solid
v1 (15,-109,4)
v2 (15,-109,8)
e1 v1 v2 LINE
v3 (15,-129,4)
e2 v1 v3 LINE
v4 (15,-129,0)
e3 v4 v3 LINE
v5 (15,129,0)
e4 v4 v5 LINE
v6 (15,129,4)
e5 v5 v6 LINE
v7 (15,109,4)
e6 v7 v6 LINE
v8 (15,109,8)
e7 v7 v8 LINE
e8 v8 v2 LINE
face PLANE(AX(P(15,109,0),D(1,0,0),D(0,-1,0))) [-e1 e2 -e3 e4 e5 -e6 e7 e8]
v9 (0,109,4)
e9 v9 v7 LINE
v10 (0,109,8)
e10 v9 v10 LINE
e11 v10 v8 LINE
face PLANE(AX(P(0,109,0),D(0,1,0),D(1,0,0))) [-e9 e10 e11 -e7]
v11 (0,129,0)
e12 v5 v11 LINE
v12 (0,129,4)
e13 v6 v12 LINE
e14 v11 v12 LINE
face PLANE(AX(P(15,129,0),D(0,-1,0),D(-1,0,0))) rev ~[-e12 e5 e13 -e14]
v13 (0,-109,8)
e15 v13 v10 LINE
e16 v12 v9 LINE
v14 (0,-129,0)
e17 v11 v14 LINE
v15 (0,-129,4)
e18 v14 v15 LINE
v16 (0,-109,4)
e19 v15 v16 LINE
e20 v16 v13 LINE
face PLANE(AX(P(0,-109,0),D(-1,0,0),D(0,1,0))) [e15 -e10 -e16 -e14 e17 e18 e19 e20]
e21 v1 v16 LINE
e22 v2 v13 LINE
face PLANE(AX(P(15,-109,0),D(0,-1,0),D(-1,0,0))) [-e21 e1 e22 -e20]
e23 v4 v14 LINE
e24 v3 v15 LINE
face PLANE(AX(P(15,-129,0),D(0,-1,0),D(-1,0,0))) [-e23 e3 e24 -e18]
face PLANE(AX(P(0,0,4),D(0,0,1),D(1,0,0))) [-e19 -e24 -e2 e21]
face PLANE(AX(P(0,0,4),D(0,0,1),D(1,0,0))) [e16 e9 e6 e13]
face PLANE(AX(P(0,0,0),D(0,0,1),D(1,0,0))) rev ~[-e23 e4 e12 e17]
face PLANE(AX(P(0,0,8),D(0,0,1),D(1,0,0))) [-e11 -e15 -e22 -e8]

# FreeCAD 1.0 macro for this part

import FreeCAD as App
import Part
import Sketcher
from FreeCAD import Vector

doc = App.newDocument("Part")
body = doc.addObject("PartDesign::Body", "Body")

sketch1 = doc.addObject("Sketcher::SketchObject", "Sketch")
body.addObject(sketch1)
sketch1.AttachmentSupport = (doc.XY_Plane, [""])
sketch1.MapMode = "FlatFace"
sketch1.addGeometry(Part.LineSegment(Vector(15, 109, 0), Vector(0, 109, 0)), False)
sketch1.addGeometry(Part.LineSegment(Vector(0, 109, 0), Vector(0, -109, 0)), False)
sketch1.addGeometry(Part.LineSegment(Vector(0, -109, 0), Vector(15, -109, 0)), False)
sketch1.addGeometry(Part.LineSegment(Vector(15, -109, 0), Vector(15, 109, 0)), False)
sketch1.addConstraint(Sketcher.Constraint("Coincident", 0, 2, 1, 1))
sketch1.addConstraint(Sketcher.Constraint("Coincident", 1, 2, 2, 1))
sketch1.addConstraint(Sketcher.Constraint("Coincident", 2, 2, 3, 1))
sketch1.addConstraint(Sketcher.Constraint("Coincident", 3, 2, 0, 1))
sketch1.addConstraint(Sketcher.Constraint("Horizontal", 0))
sketch1.addConstraint(Sketcher.Constraint("Vertical", 1))
sketch1.addConstraint(Sketcher.Constraint("Horizontal", 2))
sketch1.addConstraint(Sketcher.Constraint("Vertical", 3))
sketch1.addConstraint(Sketcher.Constraint("Symmetric", 0, 2, 1, 2, -1, 1))
sketch1.addConstraint(Sketcher.Constraint("DistanceX", 0, 2, 0, 1, 15.0))
sketch1.addConstraint(Sketcher.Constraint("DistanceY", 1, 2, 1, 1, 218.0))
pad1 = doc.addObject("PartDesign::Pad", "Pad")
body.addObject(pad1)
pad1.Profile = sketch1
pad1.Length = 8

sketch2 = doc.addObject("Sketcher::SketchObject", "Sketch001")
body.addObject(sketch2)
sketch2.AttachmentSupport = (doc.XY_Plane, [""])
sketch2.MapMode = "FlatFace"
sketch2.addGeometry(Part.LineSegment(Vector(0, 129, 0), Vector(0, 109, 0)), False)
sketch2.addGeometry(Part.LineSegment(Vector(0, 109, 0), Vector(15, 109, 0)), False)
sketch2.addGeometry(Part.LineSegment(Vector(15, 109, 0), Vector(15, 129, 0)), False)
sketch2.addGeometry(Part.LineSegment(Vector(15, 129, 0), Vector(0, 129, 0)), False)
sketch2.addGeometry(Part.LineSegment(Vector(15, -109, 0), Vector(0, -109, 0)), False)
sketch2.addGeometry(Part.LineSegment(Vector(0, -109, 0), Vector(0, -129, 0)), False)
sketch2.addGeometry(Part.LineSegment(Vector(0, -129, 0), Vector(15, -129, 0)), False)
sketch2.addGeometry(Part.LineSegment(Vector(15, -129, 0), Vector(15, -109, 0)), False)
sketch2.addConstraint(Sketcher.Constraint("Coincident", 0, 2, 1, 1))
sketch2.addConstraint(Sketcher.Constraint("Coincident", 1, 2, 2, 1))
sketch2.addConstraint(Sketcher.Constraint("Coincident", 2, 2, 3, 1))
sketch2.addConstraint(Sketcher.Constraint("Coincident", 3, 2, 0, 1))
sketch2.addConstraint(Sketcher.Constraint("Coincident", 4, 2, 5, 1))
sketch2.addConstraint(Sketcher.Constraint("Coincident", 5, 2, 6, 1))
sketch2.addConstraint(Sketcher.Constraint("Coincident", 6, 2, 7, 1))
sketch2.addConstraint(Sketcher.Constraint("Coincident", 7, 2, 4, 1))
sketch2.addConstraint(Sketcher.Constraint("Vertical", 0))
sketch2.addConstraint(Sketcher.Constraint("Horizontal", 1))
sketch2.addConstraint(Sketcher.Constraint("Vertical", 2))
sketch2.addConstraint(Sketcher.Constraint("Horizontal", 3))
sketch2.addConstraint(Sketcher.Constraint("Horizontal", 4))
sketch2.addConstraint(Sketcher.Constraint("Vertical", 5))
sketch2.addConstraint(Sketcher.Constraint("Horizontal", 6))
sketch2.addConstraint(Sketcher.Constraint("Vertical", 7))
sketch2.addConstraint(Sketcher.Constraint("Symmetric", 0, 2, 4, 2, -1, 1))
sketch2.addConstraint(Sketcher.Constraint("Symmetric", 3, 2, 5, 2, -1))
sketch2.addConstraint(Sketcher.Constraint("Vertical", 2, 2, 6, 2))
sketch2.addConstraint(Sketcher.Constraint("DistanceX", 1, 1, 1, 2, 15.0))
sketch2.addConstraint(Sketcher.Constraint("DistanceY", 0, 2, 0, 1, 20.0))
sketch2.addConstraint(Sketcher.Constraint("DistanceY", 4, 2, 0, 2, 218.0))
pad2 = doc.addObject("PartDesign::Pad", "Pad001")
body.addObject(pad2)
pad2.Profile = sketch2
pad2.Length = 4

doc.recompute()
